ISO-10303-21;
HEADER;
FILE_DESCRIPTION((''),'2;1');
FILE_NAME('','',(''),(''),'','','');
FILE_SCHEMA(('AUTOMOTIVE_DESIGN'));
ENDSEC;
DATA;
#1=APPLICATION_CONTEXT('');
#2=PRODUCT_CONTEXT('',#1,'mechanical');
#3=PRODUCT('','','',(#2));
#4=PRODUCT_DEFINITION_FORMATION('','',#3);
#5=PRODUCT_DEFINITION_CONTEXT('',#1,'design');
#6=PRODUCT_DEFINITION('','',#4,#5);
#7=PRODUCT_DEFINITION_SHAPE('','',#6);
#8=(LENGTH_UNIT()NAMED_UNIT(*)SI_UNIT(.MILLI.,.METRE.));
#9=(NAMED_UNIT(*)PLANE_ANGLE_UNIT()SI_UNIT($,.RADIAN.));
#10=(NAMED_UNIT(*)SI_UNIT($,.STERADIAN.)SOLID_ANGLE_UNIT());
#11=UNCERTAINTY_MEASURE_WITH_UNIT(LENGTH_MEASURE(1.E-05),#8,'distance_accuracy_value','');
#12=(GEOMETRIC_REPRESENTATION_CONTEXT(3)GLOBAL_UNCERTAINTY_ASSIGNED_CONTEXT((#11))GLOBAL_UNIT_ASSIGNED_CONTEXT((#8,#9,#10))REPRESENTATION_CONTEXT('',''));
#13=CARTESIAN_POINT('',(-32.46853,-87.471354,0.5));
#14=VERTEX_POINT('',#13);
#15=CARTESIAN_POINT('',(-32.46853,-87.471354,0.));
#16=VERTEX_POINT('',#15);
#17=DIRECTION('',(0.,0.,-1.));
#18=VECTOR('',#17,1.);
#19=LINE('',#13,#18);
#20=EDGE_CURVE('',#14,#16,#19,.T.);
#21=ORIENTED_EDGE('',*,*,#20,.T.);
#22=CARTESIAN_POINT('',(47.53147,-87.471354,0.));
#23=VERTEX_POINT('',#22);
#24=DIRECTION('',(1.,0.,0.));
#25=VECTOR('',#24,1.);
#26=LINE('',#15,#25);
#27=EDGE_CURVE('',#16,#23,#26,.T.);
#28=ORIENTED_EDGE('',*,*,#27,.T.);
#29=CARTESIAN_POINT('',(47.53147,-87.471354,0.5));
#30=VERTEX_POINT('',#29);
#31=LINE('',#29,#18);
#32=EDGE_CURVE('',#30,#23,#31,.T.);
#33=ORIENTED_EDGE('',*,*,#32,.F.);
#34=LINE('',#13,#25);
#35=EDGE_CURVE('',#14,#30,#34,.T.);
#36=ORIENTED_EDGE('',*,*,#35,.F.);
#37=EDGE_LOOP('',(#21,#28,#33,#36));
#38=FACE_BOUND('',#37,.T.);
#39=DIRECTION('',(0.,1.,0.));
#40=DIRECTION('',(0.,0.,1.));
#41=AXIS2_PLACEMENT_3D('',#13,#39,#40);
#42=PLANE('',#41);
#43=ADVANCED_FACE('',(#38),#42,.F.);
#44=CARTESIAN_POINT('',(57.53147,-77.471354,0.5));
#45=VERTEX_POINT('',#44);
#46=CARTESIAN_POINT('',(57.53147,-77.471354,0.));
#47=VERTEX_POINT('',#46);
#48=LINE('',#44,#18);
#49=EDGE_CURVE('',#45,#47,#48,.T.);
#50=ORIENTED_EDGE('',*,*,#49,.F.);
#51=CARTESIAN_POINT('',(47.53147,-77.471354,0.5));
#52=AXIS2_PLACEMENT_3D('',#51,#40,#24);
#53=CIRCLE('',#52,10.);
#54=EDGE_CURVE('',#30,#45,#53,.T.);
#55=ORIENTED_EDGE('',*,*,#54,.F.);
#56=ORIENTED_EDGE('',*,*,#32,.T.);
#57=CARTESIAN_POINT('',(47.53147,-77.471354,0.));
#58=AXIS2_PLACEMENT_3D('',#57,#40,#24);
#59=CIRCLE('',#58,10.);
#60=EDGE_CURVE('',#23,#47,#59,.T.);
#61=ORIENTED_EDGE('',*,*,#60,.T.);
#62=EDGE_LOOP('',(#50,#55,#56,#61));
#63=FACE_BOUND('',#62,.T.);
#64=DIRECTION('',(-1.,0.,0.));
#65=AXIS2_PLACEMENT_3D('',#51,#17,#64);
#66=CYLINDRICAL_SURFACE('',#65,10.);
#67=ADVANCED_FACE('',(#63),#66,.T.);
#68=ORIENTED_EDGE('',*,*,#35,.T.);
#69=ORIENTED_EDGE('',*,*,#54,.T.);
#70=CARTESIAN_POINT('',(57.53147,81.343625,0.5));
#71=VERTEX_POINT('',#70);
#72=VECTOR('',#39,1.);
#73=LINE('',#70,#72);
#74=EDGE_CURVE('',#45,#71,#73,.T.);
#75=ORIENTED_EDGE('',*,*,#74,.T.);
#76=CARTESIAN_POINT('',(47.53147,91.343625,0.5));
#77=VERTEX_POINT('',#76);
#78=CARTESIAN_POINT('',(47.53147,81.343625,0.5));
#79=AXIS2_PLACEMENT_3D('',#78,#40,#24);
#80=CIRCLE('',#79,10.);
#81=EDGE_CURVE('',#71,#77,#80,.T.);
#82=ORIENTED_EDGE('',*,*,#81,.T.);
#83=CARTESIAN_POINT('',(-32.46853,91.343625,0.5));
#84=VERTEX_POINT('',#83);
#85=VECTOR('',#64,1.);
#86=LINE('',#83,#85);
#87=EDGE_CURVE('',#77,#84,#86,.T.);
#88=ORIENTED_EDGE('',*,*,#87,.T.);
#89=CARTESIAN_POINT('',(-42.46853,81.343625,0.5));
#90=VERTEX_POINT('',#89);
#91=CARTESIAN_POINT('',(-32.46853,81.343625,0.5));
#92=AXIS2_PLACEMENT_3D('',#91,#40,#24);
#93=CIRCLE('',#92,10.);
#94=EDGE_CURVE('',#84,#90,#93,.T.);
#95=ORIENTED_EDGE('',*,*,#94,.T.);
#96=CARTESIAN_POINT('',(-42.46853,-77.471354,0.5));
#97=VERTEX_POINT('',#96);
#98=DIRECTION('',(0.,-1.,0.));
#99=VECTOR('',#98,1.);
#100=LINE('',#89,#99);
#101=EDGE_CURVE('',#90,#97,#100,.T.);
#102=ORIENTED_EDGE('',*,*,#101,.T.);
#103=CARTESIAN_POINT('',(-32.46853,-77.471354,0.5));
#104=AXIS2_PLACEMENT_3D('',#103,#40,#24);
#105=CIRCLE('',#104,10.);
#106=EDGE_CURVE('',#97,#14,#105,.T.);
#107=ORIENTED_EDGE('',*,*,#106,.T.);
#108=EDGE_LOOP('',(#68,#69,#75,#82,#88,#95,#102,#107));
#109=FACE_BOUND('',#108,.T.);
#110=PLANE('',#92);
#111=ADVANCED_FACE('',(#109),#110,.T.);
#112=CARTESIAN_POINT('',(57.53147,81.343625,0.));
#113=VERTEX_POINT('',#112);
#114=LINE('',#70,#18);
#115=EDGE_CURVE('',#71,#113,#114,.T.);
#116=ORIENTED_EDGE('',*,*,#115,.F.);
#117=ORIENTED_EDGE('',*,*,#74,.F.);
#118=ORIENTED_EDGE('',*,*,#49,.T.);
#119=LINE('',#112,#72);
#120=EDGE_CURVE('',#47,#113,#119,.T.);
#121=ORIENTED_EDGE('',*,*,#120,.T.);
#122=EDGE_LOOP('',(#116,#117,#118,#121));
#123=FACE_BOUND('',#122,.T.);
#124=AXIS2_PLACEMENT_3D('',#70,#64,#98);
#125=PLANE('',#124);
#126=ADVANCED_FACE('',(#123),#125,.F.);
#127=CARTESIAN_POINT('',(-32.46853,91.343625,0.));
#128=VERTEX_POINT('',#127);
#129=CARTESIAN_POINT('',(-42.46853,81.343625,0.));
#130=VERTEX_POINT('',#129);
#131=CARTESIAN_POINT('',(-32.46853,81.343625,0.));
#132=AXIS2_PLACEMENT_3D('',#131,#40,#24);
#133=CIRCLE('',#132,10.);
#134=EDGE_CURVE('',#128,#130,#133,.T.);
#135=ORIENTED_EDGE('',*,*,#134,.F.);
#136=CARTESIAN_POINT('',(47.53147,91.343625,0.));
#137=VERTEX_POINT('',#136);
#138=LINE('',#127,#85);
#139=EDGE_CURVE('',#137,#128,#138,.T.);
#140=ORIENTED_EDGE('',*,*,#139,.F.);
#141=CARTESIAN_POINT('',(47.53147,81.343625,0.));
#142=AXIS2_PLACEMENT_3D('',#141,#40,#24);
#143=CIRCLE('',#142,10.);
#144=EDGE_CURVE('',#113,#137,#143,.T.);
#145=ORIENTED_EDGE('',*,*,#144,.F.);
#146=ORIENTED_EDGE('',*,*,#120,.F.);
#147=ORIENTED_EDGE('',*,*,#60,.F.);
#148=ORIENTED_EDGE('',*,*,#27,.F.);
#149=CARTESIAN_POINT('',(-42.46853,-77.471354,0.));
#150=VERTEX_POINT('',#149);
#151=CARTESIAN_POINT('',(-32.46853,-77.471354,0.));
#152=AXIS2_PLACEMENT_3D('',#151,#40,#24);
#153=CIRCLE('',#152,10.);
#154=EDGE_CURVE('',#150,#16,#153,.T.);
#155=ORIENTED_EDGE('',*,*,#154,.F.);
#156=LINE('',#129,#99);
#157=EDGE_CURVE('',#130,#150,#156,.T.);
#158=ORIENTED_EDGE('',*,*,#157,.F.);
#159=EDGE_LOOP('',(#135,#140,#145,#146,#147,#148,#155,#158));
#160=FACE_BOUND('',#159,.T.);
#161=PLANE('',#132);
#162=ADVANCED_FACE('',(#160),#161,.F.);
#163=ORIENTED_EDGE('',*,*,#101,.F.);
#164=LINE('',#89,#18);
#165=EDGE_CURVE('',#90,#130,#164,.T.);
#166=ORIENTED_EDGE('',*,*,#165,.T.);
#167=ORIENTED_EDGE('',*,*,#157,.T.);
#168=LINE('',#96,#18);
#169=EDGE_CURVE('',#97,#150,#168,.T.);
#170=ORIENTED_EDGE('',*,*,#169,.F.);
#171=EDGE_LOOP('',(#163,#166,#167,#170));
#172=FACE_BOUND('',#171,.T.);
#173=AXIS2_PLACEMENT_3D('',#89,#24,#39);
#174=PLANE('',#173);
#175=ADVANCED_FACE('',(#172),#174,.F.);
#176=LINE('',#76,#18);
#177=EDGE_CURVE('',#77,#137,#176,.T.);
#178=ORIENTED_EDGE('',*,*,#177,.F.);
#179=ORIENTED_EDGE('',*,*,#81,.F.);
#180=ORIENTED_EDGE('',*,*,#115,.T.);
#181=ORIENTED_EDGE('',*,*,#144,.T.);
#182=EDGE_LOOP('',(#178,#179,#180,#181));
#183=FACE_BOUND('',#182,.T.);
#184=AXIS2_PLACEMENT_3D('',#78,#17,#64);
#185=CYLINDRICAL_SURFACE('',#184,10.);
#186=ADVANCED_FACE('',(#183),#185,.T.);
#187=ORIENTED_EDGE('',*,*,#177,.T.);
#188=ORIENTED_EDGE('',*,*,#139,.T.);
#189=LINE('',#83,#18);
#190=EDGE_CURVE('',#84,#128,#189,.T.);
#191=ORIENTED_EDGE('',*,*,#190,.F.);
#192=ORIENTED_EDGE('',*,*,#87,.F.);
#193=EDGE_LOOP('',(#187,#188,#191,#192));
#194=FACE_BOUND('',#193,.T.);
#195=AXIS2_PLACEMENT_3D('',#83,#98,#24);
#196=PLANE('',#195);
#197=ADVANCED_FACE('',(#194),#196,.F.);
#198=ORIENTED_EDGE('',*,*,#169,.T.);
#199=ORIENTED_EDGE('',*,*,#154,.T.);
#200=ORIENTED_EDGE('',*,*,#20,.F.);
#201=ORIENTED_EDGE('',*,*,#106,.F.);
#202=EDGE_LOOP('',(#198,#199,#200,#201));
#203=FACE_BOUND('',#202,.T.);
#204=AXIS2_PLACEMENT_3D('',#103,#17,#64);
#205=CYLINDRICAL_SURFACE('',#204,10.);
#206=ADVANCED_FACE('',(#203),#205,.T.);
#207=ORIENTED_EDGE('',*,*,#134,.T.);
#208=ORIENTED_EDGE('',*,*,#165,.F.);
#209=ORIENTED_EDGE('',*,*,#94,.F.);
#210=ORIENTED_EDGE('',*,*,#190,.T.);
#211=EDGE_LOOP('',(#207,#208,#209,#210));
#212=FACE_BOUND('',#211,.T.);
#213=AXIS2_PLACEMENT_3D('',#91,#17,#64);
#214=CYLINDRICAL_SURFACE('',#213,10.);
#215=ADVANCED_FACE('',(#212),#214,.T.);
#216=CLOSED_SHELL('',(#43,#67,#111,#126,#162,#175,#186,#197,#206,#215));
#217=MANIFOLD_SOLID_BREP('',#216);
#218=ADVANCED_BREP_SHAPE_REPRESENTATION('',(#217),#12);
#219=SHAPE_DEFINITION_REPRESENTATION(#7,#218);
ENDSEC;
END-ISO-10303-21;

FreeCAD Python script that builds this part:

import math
import FreeCAD as App
import Part
import Sketcher
from FreeCAD import Vector
Q = App.Units.Quantity

doc = App.newDocument("Part")
body = doc.addObject("PartDesign::Body", "Body")

sketch1 = body.newObject("Sketcher::SketchObject", "Sketch")
sketch1.AttachmentSupport = (doc.getObject("XY_Plane"), [""])
sketch1.MapMode = "FlatFace"
sketch1.addGeometry(Part.LineSegment(Vector(48, 91, 0), Vector(-32, 91, 0)), False)
sketch1.addGeometry(Part.ArcOfCircle(Part.Circle(Vector(-32, 81, 0), Vector(0, 0, 1), 10), math.radians(90), math.radians(180)), False)
sketch1.addGeometry(Part.LineSegment(Vector(-42, 81, 0), Vector(-42, -77, 0)), False)
sketch1.addGeometry(Part.ArcOfCircle(Part.Circle(Vector(-32, -77, 0), Vector(0, 0, 1), 10), math.radians(180), math.radians(270)), False)
sketch1.addGeometry(Part.LineSegment(Vector(-32, -87, 0), Vector(48, -87, 0)), False)
sketch1.addGeometry(Part.ArcOfCircle(Part.Circle(Vector(48, -77, 0), Vector(0, 0, 1), 10), math.radians(-90), math.radians(0)), False)
sketch1.addGeometry(Part.LineSegment(Vector(58, -77, 0), Vector(58, 81, 0)), False)
sketch1.addGeometry(Part.ArcOfCircle(Part.Circle(Vector(48, 81, 0), Vector(0, 0, 1), 10), math.radians(0), math.radians(90)), False)
sketch1.addConstraint(Sketcher.Constraint("Tangent", 0, 2, 1, 1))
sketch1.addConstraint(Sketcher.Constraint("Tangent", 1, 2, 2, 1))
sketch1.addConstraint(Sketcher.Constraint("Tangent", 2, 2, 3, 1))
sketch1.addConstraint(Sketcher.Constraint("Tangent", 3, 2, 4, 1))
sketch1.addConstraint(Sketcher.Constraint("Tangent", 4, 2, 5, 1))
sketch1.addConstraint(Sketcher.Constraint("Tangent", 5, 2, 6, 1))
sketch1.addConstraint(Sketcher.Constraint("Tangent", 6, 2, 7, 1))
sketch1.addConstraint(Sketcher.Constraint("Tangent", 7, 2, 0, 1))
sketch1.addConstraint(Sketcher.Constraint("Horizontal", 0))
sketch1.addConstraint(Sketcher.Constraint("Vertical", 2))
sketch1.addConstraint(Sketcher.Constraint("Horizontal", 4))
sketch1.addConstraint(Sketcher.Constraint("Vertical", 6))
sketch1.addConstraint(Sketcher.Constraint("Equal", 1, 3))
sketch1.addConstraint(Sketcher.Constraint("Equal", 3, 5))
sketch1.addConstraint(Sketcher.Constraint("Equal", 5, 7))
sketch1.addConstraint(Sketcher.Constraint("Radius", 1, Q("10 mm")))
sketch1.addConstraint(Sketcher.Constraint("DistanceX", 0, 2, 0, 1, Q("80 mm")))
sketch1.addConstraint(Sketcher.Constraint("DistanceY", 2, 2, 2, 1, Q("158.814979 mm")))
sketch1.addConstraint(Sketcher.Constraint("DistanceX", 1, 3, -1, 1, Q("32.46853 mm")))
sketch1.addConstraint(Sketcher.Constraint("DistanceY", -1, 1, 1, 3, Q("81.343625 mm")))
pad1 = body.newObject("PartDesign::Pad", "Pad")
pad1.Profile = sketch1
pad1.Length = 0.5

doc.recompute()
